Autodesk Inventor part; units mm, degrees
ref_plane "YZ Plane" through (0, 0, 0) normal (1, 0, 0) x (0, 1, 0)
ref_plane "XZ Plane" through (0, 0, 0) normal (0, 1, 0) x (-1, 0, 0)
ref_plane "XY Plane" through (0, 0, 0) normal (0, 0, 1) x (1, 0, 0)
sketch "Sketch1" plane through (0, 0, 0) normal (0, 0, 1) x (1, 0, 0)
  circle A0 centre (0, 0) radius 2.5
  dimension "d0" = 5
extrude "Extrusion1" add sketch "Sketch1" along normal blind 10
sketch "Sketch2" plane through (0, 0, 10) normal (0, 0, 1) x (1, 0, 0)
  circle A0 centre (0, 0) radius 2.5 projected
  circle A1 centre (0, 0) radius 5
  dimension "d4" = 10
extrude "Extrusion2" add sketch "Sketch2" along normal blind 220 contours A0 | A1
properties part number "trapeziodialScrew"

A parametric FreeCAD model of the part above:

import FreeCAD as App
import Part
import Sketcher

V = App.Vector
Q = App.Units.Quantity

doc = App.newDocument("Part")
body = doc.addObject("PartDesign::Body", "Body")

sketch1 = body.newObject("Sketcher::SketchObject", "Sketch")
sketch1.AttachmentSupport = (doc.getObject("XY_Plane"), [""])
sketch1.MapMode = "FlatFace"
sketch1.addGeometry(Part.Circle(V(0, 0, 0), V(0, 0, 1), 2.5), False)
sketch1.addConstraint([
    Sketcher.Constraint("Coincident", 0, 3, -1, 1),
    Sketcher.Constraint("Diameter", 0, Q("5 mm")),
])
pad1 = body.newObject("PartDesign::Pad", "Pad")
pad1.Profile = sketch1
pad1.Length = 10

sketch2 = body.newObject("Sketcher::SketchObject", "Sketch001")
sketch2.AttachmentSupport = (doc.getObject("XY_Plane"), [""])
sketch2.MapMode = "FlatFace"
sketch2.AttachmentOffset = App.Placement(V(0, 0, 10), App.Rotation())
sketch2.addGeometry(Part.Circle(V(0, 0, 0), V(0, 0, 1), 5), False)
sketch2.addConstraint([
    Sketcher.Constraint("Coincident", 0, 3, -1, 1),
    Sketcher.Constraint("Diameter", 0, Q("10 mm")),
])
pad2 = body.newObject("PartDesign::Pad", "Pad001")
pad2.Profile = sketch2
pad2.Length = 220

doc.recompute()
